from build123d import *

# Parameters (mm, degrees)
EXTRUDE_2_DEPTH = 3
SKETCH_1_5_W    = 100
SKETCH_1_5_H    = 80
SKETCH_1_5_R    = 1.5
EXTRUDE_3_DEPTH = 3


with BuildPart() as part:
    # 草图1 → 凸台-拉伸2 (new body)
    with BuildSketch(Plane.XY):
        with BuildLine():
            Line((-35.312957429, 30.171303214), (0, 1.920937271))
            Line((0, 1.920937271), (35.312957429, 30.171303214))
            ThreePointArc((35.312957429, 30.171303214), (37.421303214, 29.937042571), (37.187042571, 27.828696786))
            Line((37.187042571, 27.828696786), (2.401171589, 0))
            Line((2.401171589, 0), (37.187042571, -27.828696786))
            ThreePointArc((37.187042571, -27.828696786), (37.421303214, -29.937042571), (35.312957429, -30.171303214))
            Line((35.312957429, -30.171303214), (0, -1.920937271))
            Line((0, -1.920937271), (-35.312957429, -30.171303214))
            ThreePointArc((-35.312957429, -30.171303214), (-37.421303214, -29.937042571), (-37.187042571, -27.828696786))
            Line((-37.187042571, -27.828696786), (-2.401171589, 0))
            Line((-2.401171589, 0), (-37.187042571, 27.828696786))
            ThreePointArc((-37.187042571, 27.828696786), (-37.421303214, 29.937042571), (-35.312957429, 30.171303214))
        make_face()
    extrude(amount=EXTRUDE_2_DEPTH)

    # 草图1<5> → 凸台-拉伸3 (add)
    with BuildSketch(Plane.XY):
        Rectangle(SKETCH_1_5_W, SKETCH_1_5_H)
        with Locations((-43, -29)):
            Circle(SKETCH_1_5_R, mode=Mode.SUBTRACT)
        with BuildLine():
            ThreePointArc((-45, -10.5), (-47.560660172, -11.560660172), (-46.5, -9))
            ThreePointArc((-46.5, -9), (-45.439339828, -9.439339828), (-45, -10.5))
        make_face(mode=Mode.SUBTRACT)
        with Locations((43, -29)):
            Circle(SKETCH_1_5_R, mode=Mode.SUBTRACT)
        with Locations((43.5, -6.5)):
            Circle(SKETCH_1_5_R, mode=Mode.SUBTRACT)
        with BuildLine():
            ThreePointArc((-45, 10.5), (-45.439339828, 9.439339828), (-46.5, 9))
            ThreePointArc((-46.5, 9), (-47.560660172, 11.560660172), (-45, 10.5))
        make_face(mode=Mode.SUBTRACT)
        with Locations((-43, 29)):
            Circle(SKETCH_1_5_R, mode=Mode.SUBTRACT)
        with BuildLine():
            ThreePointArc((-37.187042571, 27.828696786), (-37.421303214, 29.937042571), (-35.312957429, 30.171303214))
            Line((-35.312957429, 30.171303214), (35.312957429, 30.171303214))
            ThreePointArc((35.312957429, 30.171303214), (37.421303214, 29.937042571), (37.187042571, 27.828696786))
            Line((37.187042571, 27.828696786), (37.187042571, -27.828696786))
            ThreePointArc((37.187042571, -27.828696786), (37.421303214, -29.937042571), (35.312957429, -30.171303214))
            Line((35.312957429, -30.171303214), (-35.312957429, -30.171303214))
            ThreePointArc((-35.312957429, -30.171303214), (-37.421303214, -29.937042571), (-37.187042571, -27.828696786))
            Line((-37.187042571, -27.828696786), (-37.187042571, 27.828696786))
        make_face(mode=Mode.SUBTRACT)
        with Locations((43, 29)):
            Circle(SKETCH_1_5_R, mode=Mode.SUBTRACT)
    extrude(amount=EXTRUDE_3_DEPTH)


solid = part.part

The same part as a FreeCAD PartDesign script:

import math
import FreeCAD as App
import Part
import Sketcher
from FreeCAD import Vector

doc = App.newDocument("Part")
body = doc.addObject("PartDesign::Body", "Body")

# Sketch on XY plane
sketch1 = doc.addObject("Sketcher::SketchObject", "Sketch")
body.addObject(sketch1)
sketch1.AttachmentSupport = (doc.XY_Plane, [""])
sketch1.MapMode = "FlatFace"
sketch1.addGeometry([
    Part.LineSegment(Vector(0, 1.920937, 0), Vector(-35.312957, 30.171303, 0)),  # 0
    Part.ArcOfCircle(Part.Circle(Vector(-36.25, 29, 0), Vector(0, 0, 1), 1.5), math.radians(51.340192), math.radians(231.340192)),  # 1
    Part.LineSegment(Vector(-37.187043, 27.828697, 0), Vector(-2.401172, 0, 0)),  # 2
    Part.LineSegment(Vector(-2.401172, 0, 0), Vector(-37.187043, -27.828697, 0)),  # 3
    Part.ArcOfCircle(Part.Circle(Vector(-36.25, -29, 0), Vector(0, 0, 1), 1.5), math.radians(128.659808), math.radians(308.659808)),  # 4
    Part.LineSegment(Vector(-35.312957, -30.171303, 0), Vector(0, -1.920937, 0)),  # 5
    Part.LineSegment(Vector(0, -1.920937, 0), Vector(35.312957, -30.171303, 0)),  # 6
    Part.ArcOfCircle(Part.Circle(Vector(36.25, -29, 0), Vector(0, 0, 1), 1.5), math.radians(-128.659808), math.radians(51.340192)),  # 7
    Part.LineSegment(Vector(37.187043, -27.828697, 0), Vector(2.401172, 0, 0)),  # 8
    Part.LineSegment(Vector(2.401172, 0, 0), Vector(37.187043, 27.828697, 0)),  # 9
    Part.ArcOfCircle(Part.Circle(Vector(36.25, 29, 0), Vector(0, 0, 1), 1.5), math.radians(-51.340192), math.radians(128.659808)),  # 10
    Part.LineSegment(Vector(35.312957, 30.171303, 0), Vector(0, 1.920937, 0)),  # 11
], False)
sketch1.addConstraint([
    Sketcher.Constraint("Tangent", 0, 2, 1, 1),
    Sketcher.Constraint("Tangent", 1, 2, 2, 1),
    Sketcher.Constraint("Coincident", 2, 2, 3, 1),
    Sketcher.Constraint("Tangent", 3, 2, 4, 1),
    Sketcher.Constraint("Tangent", 4, 2, 5, 1),
    Sketcher.Constraint("Coincident", 5, 2, 6, 1),
    Sketcher.Constraint("Tangent", 6, 2, 7, 1),
    Sketcher.Constraint("Tangent", 7, 2, 8, 1),
    Sketcher.Constraint("Coincident", 8, 2, 9, 1),
    Sketcher.Constraint("Tangent", 9, 2, 10, 1),
    Sketcher.Constraint("Tangent", 10, 2, 11, 1),
    Sketcher.Constraint("Coincident", 11, 2, 0, 1),
    Sketcher.Constraint("Equal", 1, 4),
    Sketcher.Constraint("Equal", 4, 7),
    Sketcher.Constraint("Equal", 7, 10),
    Sketcher.Constraint("Symmetric", 1, 3, 7, 3, -1, 1),
    Sketcher.Constraint("Symmetric", 4, 3, 10, 3, -1, 1),
    Sketcher.Constraint("Symmetric", 2, 2, 8, 2, -1, 1),
    Sketcher.Constraint("Symmetric", 5, 2, 11, 2, -1, 1),
    Sketcher.Constraint("Symmetric", 4, 3, 7, 3, -2),
    Sketcher.Constraint("PointOnObject", 2, 2, -1),
    Sketcher.Constraint("PointOnObject", 5, 2, -2),
    Sketcher.Constraint("Parallel", 0, 2),
    Sketcher.Constraint("Radius", 1, 1.5),
    Sketcher.Constraint("DistanceY", -1, 1, 1, 3, 29.0),
    Sketcher.Constraint("DistanceX", 4, 3, 7, 3, 72.5),
    Sketcher.Constraint("Distance", 0, 45.222651),
])
pad1 = doc.addObject("PartDesign::Pad", "Pad")
body.addObject(pad1)
pad1.Profile = sketch1
pad1.Length = 3

# Sketch on XY plane
sketch2 = doc.addObject("Sketcher::SketchObject", "Sketch001")
body.addObject(sketch2)
sketch2.AttachmentSupport = (doc.XY_Plane, [""])
sketch2.MapMode = "FlatFace"
sketch2.addGeometry([
    Part.LineSegment(Vector(-50, 40, 0), Vector(-50, -40, 0)),  # 0
    Part.LineSegment(Vector(-50, -40, 0), Vector(50, -40, 0)),  # 1
    Part.LineSegment(Vector(50, -40, 0), Vector(50, 40, 0)),  # 2
    Part.LineSegment(Vector(50, 40, 0), Vector(-50, 40, 0)),  # 3
    Part.Circle(Vector(-43, -29, 0), Vector(0, 0, 1), 1.5),  # 4
    Part.ArcOfCircle(Part.Circle(Vector(-46.5, -10.5, 0), Vector(0, 0, 1), 1.5), math.radians(0), math.radians(90)),  # 5
    Part.ArcOfCircle(Part.Circle(Vector(-46.5, -10.5, 0), Vector(0, 0, 1), 1.5), math.radians(90), math.radians(360)),  # 6
    Part.Circle(Vector(43, -29, 0), Vector(0, 0, 1), 1.5),  # 7
    Part.Circle(Vector(43.5, -6.5, 0), Vector(0, 0, 1), 1.5),  # 8
    Part.ArcOfCircle(Part.Circle(Vector(-46.5, 10.5, 0), Vector(0, 0, 1), 1.5), math.radians(0), math.radians(270)),  # 9
    Part.ArcOfCircle(Part.Circle(Vector(-46.5, 10.5, 0), Vector(0, 0, 1), 1.5), math.radians(-90), math.radians(0)),  # 10
    Part.Circle(Vector(-43, 29, 0), Vector(0, 0, 1), 1.5),  # 11
    Part.LineSegment(Vector(-37.187043, -27.828697, 0), Vector(-37.187043, 27.828697, 0)),  # 12
    Part.ArcOfCircle(Part.Circle(Vector(-36.25, 29, 0), Vector(0, 0, 1), 1.5), math.radians(51.340192), math.radians(231.340192)),  # 13
    Part.LineSegment(Vector(-35.312957, 30.171303, 0), Vector(35.312957, 30.171303, 0)),  # 14
    Part.ArcOfCircle(Part.Circle(Vector(36.25, 29, 0), Vector(0, 0, 1), 1.5), math.radians(-51.340192), math.radians(128.659808)),  # 15
    Part.LineSegment(Vector(37.187043, 27.828697, 0), Vector(37.187043, -27.828697, 0)),  # 16
    Part.ArcOfCircle(Part.Circle(Vector(36.25, -29, 0), Vector(0, 0, 1), 1.5), math.radians(-128.659808), math.radians(51.340192)),  # 17
    Part.LineSegment(Vector(35.312957, -30.171303, 0), Vector(-35.312957, -30.171303, 0)),  # 18
    Part.ArcOfCircle(Part.Circle(Vector(-36.25, -29, 0), Vector(0, 0, 1), 1.5), math.radians(128.659808), math.radians(308.659808)),  # 19
    Part.Circle(Vector(43, 29, 0), Vector(0, 0, 1), 1.5),  # 20
], False)
sketch2.addConstraint([
    Sketcher.Constraint("Coincident", 0, 2, 1, 1),
    Sketcher.Constraint("Coincident", 1, 2, 2, 1),
    Sketcher.Constraint("Coincident", 2, 2, 3, 1),
    Sketcher.Constraint("Coincident", 3, 2, 0, 1),
    Sketcher.Constraint("Tangent", 5, 1, 6, 2),
    Sketcher.Constraint("Coincident", 6, 1, 5, 2),
    Sketcher.Constraint("Tangent", 9, 1, 10, 2),
    Sketcher.Constraint("Coincident", 10, 1, 9, 2),
    Sketcher.Constraint("Coincident", 12, 2, 13, 2),
    Sketcher.Constraint("Coincident", 13, 1, 14, 1),
    Sketcher.Constraint("Coincident", 14, 2, 15, 2),
    Sketcher.Constraint("Coincident", 15, 1, 16, 1),
    Sketcher.Constraint("Coincident", 16, 2, 17, 2),
    Sketcher.Constraint("Coincident", 17, 1, 18, 1),
    Sketcher.Constraint("Coincident", 18, 2, 19, 2),
    Sketcher.Constraint("Coincident", 19, 1, 12, 1),
    Sketcher.Constraint("Vertical", 0),
    Sketcher.Constraint("Horizontal", 1),
    Sketcher.Constraint("Vertical", 2),
    Sketcher.Constraint("Horizontal", 3),
    Sketcher.Constraint("Vertical", 12),
    Sketcher.Constraint("Horizontal", 14),
    Sketcher.Constraint("Vertical", 16),
    Sketcher.Constraint("Horizontal", 18),
    Sketcher.Constraint("Equal", 4, 5),
    Sketcher.Constraint("Equal", 6, 7),
    Sketcher.Constraint("Equal", 7, 8),
    Sketcher.Constraint("Equal", 8, 9),
    Sketcher.Constraint("Equal", 10, 11),
    Sketcher.Constraint("Equal", 11, 13),
    Sketcher.Constraint("Equal", 13, 15),
    Sketcher.Constraint("Equal", 15, 17),
    Sketcher.Constraint("Equal", 17, 19),
    Sketcher.Constraint("Equal", 19, 20),
    Sketcher.Constraint("Symmetric", 7, 3, 11, 3, -1, 1),
    Sketcher.Constraint("Symmetric", 13, 3, 17, 3, -1, 1),
    Sketcher.Constraint("Symmetric", 15, 3, 19, 3, -1, 1),
    Sketcher.Constraint("Symmetric", 4, 3, 20, 3, -1, 1),
    Sketcher.Constraint("Symmetric", 0, 2, 2, 2, -1, 1),
    Sketcher.Constraint("Symmetric", 4, 3, 7, 3, -2),
    Sketcher.Constraint("Symmetric", 13, 3, 15, 3, -2),
    Sketcher.Constraint("Symmetric", 5, 3, 9, 3, -1),
    Sketcher.Constraint("Horizontal", 11, 3, 13, 3),
    Sketcher.Constraint("Horizontal", 6, 3, 5, 1),
    Sketcher.Constraint("Horizontal", 10, 3, 9, 1),
    Sketcher.Constraint("Horizontal", 12, 2, 15, 1),
    Sketcher.Constraint("Vertical", 10, 3, 6, 1),
    Sketcher.Constraint("Vertical", 6, 1, 10, 1),
    Sketcher.Constraint("Vertical", 14, 2, 17, 1),
    Sketcher.Constraint("Diameter", 4, 3.0),
    Sketcher.Constraint("DistanceX", 1, 1, 1, 2, 100.0),
    Sketcher.Constraint("DistanceY", 0, 2, 0, 1, 80.0),
    Sketcher.Constraint("DistanceX", 4, 3, -1, 1, 43.0),
    Sketcher.Constraint("DistanceY", 4, 3, -1, 1, 29.0),
    Sketcher.Constraint("DistanceX", 5, 1, -1, 1, 45.0),
    Sketcher.Constraint("DistanceY", 6, 1, -1, 1, 9.0),
    Sketcher.Constraint("DistanceX", 5, 3, 8, 3, 90.0),
    Sketcher.Constraint("DistanceY", 5, 3, 8, 3, 4.0),
    Sketcher.Constraint("DistanceX", 13, 3, 15, 3, 72.5),
    Sketcher.Constraint("DistanceX", 14, 1, 14, 2, 70.625915),
    Sketcher.Constraint("DistanceY", 12, 1, 12, 2, 55.657394),
])
pad2 = doc.addObject("PartDesign::Pad", "Pad001")
body.addObject(pad2)
pad2.Profile = sketch2
pad2.Length = 3

doc.recompute()
